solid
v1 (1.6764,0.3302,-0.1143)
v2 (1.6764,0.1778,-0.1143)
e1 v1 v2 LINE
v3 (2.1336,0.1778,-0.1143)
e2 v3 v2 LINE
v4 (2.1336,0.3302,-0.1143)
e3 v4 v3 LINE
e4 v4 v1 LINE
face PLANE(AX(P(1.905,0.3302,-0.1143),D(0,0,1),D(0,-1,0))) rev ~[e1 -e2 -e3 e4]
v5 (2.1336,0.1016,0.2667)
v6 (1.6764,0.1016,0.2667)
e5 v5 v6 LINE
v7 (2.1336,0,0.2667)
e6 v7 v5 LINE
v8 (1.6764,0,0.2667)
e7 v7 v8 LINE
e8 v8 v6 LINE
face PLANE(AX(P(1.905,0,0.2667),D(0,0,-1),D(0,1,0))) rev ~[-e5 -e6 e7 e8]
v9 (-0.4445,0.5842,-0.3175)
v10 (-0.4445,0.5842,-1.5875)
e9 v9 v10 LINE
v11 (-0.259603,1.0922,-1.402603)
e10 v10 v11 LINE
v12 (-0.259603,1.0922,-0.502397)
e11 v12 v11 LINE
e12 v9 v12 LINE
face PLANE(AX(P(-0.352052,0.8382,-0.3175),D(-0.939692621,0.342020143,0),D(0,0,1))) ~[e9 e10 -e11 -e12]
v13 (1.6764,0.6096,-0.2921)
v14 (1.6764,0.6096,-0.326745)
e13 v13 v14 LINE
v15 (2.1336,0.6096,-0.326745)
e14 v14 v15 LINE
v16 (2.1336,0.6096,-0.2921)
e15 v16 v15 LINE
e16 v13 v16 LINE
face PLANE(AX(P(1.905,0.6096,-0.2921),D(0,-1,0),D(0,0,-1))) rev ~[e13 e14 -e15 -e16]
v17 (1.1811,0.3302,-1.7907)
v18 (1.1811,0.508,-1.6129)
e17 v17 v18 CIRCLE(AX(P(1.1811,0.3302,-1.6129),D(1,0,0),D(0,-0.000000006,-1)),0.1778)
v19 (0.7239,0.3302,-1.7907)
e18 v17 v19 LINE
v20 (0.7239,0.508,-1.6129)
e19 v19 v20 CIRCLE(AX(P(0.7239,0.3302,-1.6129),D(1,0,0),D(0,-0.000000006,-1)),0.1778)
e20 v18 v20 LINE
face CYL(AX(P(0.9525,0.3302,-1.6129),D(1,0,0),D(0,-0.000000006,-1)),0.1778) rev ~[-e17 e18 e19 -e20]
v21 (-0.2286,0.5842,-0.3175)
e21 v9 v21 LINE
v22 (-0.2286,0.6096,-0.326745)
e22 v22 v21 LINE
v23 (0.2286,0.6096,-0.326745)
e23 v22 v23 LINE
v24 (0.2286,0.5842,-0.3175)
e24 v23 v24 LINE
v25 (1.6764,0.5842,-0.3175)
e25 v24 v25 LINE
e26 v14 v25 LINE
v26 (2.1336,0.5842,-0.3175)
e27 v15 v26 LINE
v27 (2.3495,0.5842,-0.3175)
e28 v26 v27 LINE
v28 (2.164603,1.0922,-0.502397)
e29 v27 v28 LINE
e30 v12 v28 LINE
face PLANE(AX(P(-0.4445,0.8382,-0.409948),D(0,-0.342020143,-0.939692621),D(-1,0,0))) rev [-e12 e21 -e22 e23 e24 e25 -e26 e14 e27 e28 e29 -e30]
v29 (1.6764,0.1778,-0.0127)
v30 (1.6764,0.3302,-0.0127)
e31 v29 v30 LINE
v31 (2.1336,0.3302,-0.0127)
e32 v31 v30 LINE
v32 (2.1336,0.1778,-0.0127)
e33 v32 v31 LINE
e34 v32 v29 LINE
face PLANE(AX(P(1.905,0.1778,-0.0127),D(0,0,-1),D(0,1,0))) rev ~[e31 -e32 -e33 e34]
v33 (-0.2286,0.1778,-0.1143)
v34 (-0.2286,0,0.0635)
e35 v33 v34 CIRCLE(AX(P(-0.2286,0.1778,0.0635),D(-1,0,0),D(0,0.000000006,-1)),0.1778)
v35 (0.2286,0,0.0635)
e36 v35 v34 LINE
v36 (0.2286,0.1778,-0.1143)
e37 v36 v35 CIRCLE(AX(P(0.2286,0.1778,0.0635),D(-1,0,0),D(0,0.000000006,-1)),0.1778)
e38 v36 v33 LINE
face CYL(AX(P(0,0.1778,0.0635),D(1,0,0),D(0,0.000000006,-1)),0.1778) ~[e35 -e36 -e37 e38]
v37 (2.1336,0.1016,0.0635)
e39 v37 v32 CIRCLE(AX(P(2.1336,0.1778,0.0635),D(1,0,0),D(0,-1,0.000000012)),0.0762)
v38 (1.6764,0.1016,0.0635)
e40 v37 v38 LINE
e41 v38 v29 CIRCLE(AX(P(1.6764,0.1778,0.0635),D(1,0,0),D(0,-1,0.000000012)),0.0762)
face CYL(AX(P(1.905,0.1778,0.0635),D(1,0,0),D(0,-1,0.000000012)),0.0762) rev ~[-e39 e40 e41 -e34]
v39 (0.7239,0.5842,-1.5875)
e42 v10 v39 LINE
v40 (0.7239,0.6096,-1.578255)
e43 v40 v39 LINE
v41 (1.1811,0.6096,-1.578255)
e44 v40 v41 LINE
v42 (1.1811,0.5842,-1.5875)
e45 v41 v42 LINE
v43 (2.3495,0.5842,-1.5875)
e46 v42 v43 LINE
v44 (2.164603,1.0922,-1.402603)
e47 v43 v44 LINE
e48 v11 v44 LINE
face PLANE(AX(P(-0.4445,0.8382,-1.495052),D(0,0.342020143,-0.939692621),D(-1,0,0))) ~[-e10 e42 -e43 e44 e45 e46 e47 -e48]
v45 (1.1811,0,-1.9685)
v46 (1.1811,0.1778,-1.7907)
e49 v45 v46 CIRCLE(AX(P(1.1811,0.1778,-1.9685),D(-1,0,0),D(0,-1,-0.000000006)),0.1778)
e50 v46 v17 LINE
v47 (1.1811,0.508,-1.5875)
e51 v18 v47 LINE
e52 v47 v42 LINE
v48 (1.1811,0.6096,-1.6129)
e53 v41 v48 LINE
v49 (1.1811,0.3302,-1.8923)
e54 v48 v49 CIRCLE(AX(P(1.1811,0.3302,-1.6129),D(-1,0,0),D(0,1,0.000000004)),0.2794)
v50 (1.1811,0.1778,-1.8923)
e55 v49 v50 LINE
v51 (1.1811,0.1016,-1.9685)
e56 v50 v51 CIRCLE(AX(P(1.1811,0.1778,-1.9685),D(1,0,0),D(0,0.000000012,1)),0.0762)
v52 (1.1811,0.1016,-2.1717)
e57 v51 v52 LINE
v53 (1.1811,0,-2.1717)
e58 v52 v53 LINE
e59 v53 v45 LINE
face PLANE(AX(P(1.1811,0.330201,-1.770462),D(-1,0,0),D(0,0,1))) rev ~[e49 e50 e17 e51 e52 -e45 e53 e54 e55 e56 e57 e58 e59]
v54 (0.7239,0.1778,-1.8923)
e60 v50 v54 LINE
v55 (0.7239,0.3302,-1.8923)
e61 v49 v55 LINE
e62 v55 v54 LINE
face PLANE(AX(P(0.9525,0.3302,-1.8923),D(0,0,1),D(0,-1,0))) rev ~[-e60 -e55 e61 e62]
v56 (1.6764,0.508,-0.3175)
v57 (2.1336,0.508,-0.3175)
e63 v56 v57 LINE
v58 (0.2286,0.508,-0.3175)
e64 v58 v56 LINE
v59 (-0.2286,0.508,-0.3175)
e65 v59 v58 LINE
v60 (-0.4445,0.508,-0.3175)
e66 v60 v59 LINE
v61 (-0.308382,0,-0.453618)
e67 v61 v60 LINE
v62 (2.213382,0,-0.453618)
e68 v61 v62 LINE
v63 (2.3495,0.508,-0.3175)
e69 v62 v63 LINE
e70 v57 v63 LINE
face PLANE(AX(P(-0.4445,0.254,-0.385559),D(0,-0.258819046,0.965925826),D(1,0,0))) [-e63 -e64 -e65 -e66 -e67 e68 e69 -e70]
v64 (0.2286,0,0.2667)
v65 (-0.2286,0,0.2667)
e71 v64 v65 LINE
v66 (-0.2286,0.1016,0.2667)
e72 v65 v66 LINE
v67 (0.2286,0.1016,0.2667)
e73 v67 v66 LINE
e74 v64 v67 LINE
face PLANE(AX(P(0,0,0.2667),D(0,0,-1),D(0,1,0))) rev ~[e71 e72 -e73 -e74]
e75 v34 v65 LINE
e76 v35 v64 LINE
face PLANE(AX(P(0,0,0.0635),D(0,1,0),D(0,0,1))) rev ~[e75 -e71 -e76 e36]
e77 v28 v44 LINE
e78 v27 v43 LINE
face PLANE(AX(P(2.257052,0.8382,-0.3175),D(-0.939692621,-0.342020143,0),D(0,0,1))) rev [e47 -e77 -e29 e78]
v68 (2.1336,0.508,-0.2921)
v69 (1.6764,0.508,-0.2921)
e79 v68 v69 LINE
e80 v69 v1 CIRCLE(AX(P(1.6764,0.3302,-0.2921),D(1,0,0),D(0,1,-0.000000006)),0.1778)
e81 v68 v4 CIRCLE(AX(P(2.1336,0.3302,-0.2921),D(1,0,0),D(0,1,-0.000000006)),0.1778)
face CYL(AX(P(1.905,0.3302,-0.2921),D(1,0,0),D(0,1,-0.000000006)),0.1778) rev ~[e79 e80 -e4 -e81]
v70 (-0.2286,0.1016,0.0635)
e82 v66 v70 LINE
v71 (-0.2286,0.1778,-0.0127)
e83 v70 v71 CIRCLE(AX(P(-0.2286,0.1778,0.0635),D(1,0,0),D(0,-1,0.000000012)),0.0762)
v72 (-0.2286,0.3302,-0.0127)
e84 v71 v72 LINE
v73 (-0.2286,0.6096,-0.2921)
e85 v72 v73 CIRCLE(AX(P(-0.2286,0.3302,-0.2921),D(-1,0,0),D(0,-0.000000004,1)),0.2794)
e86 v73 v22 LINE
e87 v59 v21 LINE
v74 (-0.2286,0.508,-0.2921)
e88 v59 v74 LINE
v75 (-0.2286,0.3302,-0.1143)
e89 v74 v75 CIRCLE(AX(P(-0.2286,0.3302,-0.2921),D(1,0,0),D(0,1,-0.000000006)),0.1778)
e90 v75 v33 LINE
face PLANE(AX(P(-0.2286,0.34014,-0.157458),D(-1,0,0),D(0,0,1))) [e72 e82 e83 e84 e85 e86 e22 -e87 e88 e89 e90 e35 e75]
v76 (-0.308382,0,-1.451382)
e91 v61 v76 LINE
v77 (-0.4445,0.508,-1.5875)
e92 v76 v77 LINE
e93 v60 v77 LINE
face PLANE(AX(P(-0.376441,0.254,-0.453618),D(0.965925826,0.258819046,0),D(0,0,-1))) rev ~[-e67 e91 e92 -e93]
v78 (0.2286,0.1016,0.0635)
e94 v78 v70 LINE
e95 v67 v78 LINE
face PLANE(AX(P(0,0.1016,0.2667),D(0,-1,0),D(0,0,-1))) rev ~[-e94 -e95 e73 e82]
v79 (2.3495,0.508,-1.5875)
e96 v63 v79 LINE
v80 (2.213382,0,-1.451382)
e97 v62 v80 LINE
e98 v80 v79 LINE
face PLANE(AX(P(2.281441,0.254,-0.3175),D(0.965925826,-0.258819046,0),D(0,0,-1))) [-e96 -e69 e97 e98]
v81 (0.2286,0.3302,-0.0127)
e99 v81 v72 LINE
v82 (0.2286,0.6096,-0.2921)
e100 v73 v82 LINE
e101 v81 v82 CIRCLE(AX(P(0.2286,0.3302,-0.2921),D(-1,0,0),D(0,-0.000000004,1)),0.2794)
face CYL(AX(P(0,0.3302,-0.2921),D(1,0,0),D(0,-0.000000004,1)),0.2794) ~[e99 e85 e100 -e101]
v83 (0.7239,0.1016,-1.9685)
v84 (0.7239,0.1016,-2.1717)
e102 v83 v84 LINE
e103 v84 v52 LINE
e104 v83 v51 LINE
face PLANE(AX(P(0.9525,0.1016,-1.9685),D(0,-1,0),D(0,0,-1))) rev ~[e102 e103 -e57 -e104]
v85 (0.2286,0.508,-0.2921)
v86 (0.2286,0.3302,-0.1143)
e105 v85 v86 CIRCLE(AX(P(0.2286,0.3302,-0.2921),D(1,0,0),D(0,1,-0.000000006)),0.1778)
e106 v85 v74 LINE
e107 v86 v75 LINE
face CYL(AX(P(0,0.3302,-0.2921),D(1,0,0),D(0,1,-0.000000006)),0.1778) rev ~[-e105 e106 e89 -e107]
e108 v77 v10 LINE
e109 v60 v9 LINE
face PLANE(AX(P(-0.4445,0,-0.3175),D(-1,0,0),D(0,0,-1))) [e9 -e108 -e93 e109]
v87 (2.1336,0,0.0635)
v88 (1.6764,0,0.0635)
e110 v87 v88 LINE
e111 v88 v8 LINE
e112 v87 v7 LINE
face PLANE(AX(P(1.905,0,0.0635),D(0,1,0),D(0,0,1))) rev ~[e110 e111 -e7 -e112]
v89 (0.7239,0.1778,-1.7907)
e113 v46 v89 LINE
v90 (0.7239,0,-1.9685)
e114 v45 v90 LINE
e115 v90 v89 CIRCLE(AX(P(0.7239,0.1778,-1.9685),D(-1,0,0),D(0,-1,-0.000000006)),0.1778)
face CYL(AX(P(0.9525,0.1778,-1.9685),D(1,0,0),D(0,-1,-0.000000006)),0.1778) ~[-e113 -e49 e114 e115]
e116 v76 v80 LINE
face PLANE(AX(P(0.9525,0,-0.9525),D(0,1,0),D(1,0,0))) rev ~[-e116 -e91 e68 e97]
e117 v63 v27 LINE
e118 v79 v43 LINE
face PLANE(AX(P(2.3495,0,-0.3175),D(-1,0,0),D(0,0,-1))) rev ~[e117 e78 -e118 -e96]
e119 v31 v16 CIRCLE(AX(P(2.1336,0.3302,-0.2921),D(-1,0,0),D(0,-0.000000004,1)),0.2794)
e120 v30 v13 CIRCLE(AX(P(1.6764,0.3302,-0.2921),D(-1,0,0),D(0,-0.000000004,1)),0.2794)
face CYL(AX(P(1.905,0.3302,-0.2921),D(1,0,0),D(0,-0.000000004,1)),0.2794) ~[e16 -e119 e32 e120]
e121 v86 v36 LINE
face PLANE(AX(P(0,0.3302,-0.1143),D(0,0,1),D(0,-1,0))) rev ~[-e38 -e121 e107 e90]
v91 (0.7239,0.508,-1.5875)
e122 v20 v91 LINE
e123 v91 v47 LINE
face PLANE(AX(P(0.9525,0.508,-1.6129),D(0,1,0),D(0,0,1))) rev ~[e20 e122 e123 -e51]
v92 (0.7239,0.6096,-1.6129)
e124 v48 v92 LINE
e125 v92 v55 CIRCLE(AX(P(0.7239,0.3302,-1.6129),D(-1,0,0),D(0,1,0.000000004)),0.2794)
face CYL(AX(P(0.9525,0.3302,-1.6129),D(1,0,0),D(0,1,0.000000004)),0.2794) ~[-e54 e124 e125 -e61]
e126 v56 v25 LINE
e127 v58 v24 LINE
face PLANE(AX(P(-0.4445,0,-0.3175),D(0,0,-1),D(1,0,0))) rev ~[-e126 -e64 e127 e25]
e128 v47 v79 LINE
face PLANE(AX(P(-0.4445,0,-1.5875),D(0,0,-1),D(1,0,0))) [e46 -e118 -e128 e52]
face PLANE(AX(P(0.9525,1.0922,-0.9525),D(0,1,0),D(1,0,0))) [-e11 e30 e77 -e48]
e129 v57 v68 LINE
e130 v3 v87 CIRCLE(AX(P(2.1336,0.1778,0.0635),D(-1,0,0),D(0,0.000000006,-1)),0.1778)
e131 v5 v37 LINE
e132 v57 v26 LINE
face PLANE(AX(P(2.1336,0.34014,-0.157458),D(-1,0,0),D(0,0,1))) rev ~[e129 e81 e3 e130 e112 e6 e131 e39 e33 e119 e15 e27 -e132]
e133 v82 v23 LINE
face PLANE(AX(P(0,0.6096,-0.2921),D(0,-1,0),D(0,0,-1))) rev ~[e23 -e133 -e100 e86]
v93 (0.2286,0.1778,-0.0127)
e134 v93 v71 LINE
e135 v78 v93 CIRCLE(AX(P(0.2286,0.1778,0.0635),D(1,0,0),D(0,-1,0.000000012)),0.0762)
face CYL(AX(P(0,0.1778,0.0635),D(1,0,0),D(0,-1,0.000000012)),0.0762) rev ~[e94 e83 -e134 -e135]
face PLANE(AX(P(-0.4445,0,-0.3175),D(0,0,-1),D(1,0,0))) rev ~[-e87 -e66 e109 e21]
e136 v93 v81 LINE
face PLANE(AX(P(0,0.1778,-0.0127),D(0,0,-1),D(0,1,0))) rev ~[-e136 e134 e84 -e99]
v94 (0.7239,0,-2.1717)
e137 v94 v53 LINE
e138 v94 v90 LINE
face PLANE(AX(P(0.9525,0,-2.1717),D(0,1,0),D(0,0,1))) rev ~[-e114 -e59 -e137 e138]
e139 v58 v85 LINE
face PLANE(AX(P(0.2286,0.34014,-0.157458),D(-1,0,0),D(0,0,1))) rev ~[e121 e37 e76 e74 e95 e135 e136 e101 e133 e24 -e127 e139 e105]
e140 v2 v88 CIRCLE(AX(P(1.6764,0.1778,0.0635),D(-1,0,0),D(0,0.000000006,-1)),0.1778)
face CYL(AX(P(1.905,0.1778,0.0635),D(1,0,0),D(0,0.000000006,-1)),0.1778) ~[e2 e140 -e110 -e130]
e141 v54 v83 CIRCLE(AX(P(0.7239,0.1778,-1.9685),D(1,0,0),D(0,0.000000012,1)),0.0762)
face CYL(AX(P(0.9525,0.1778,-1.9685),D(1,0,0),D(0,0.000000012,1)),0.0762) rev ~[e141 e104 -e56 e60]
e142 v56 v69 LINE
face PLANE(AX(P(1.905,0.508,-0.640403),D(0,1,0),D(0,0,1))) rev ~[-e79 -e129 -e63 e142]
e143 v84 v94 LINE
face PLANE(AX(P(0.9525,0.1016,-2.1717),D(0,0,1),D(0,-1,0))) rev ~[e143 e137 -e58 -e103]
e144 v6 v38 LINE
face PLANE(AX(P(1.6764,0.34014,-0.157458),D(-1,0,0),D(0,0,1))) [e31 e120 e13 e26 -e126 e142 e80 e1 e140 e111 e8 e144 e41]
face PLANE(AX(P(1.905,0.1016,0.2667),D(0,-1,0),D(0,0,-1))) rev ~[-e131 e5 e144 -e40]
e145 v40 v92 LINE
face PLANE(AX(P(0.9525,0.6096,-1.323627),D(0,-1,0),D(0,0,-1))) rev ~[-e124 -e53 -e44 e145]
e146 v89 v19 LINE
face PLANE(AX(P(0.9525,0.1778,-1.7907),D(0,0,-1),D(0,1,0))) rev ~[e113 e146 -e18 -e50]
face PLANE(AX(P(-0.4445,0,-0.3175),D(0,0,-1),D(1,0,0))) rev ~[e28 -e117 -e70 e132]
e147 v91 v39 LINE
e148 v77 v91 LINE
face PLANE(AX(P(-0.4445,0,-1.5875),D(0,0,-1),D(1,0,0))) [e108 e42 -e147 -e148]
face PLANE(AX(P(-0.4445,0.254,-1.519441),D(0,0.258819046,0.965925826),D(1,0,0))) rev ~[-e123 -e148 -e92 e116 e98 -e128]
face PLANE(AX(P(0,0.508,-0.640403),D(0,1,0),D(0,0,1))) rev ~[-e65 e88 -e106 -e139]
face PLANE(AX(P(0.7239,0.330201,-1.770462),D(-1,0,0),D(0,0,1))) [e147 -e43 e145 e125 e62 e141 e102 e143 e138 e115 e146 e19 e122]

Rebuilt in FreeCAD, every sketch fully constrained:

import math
import FreeCAD as App
import Part
import Sketcher

V = App.Vector
Q = App.Units.Quantity


def edges_at(feature, points):
    """Names of the edges that pass closest to the given points."""
    edges = feature.Shape.Edges
    near = lambda p: min(range(len(edges)), key=lambda i: edges[i].distToShape(Part.Vertex(*p))[0])
    return sorted({f"Edge{near(p) + 1}" for p in points})

doc = App.newDocument("Part")
body = doc.addObject("PartDesign::Body", "Body")

# Sketch on XZ plane
sketch1 = doc.addObject("Sketcher::SketchObject", "Sketch")
body.addObject(sketch1)
sketch1.AttachmentSupport = (doc.XZ_Plane, [""])
sketch1.MapMode = "FlatFace"
sketch1.addGeometry([
    Part.LineSegment(V(-0.4, -1.6, 0), V(-0.4, -0.3, 0)),
    Part.LineSegment(V(-0.4, -0.3, 0), V(2.3, -0.3, 0)),
    Part.LineSegment(V(2.3, -0.3, 0), V(2.3, -1.6, 0)),
    Part.LineSegment(V(2.3, -1.6, 0), V(-0.4, -1.6, 0)),
], False)
sketch1.addConstraint([
    Sketcher.Constraint("Coincident", 0, 2, 1, 1),
    Sketcher.Constraint("Coincident", 1, 2, 2, 1),
    Sketcher.Constraint("Coincident", 2, 2, 3, 1),
    Sketcher.Constraint("Coincident", 3, 2, 0, 1),
    Sketcher.Constraint("Vertical", 0),
    Sketcher.Constraint("Horizontal", 1),
    Sketcher.Constraint("Vertical", 2),
    Sketcher.Constraint("Horizontal", 3),
    Sketcher.Constraint("DistanceX", 1, 1, 1, 2, Q("0.11 in")),
    Sketcher.Constraint("DistanceY", 0, 1, 0, 2, Q("0.05 in")),
    Sketcher.Constraint("DistanceY", 2, 2, -1, 1, Q("0.0625 in")),
    Sketcher.Constraint("DistanceX", 0, 2, -1, 1, Q("0.0175 in")),
])
pad1 = doc.addObject("PartDesign::Pad", "Pad")
body.addObject(pad1)
pad1.Profile = sketch1
pad1.Length = Q("0.043 in")
pad1.Reversed = True
doc.recompute()

chamfer = doc.addObject("PartDesign::Chamfer", "Chamfer")
body.addObject(chamfer)
chamfer.Base = (pad1, edges_at(pad1, [
    (2.349, 1.092, -0.953),
    (0.953, 1.092, -1.587),
    (-0.445, 1.092, -0.953),
    (0.953, 1.092, -0.318),
]))
chamfer.ChamferType = "Two distances"
chamfer.Size = Q("0.02 in")
chamfer.Size2 = 0.184897
doc.recompute()

chamfer2 = doc.addObject("PartDesign::Chamfer", "Chamfer001")
body.addObject(chamfer2)
chamfer2.Base = (chamfer, edges_at(chamfer, [(0.953, 0, -1.587)]))
chamfer2.ChamferType = "Two distances"
chamfer2.Size = 0.136118
chamfer2.Size2 = Q("0.02 in")
chamfer2.FlipDirection = True
doc.recompute()

chamfer3 = doc.addObject("PartDesign::Chamfer", "Chamfer002")
body.addObject(chamfer3)
chamfer3.Base = (chamfer2, edges_at(chamfer2, [(2.349, 0, -0.884)]))
chamfer3.ChamferType = "Two distances"
chamfer3.Size = 0.136118
chamfer3.Size2 = Q("0.02 in")
doc.recompute()

chamfer4 = doc.addObject("PartDesign::Chamfer", "Chamfer003")
body.addObject(chamfer4)
chamfer4.Base = (chamfer3, edges_at(chamfer3, [(0.884, 0, -0.318)]))
chamfer4.ChamferType = "Two distances"
chamfer4.Size = 0.136118
chamfer4.Size2 = Q("0.02 in")
doc.recompute()

chamfer5 = doc.addObject("PartDesign::Chamfer", "Chamfer004")
body.addObject(chamfer5)
chamfer5.Base = (chamfer4, edges_at(chamfer4, [(-0.445, 0, -0.953)]))
chamfer5.ChamferType = "Two distances"
chamfer5.Size = 0.136118
chamfer5.Size2 = Q("0.02 in")

# Sketch on YZ plane
sketch2 = doc.addObject("Sketcher::SketchObject", "Sketch001")
body.addObject(sketch2)
sketch2.AttachmentSupport = (doc.YZ_Plane, [""])
sketch2.MapMode = "FlatFace"
sketch2.addGeometry([
    Part.LineSegment(V(0.51, -0.29, 0), V(0.51, -0.64, 0)),  # 0
    Part.LineSegment(V(0.51, -0.64, 0), V(0.61, -0.64, 0)),  # 1
    Part.LineSegment(V(0.61, -0.64, 0), V(0.61, -0.29, 0)),  # 2
    Part.ArcOfCircle(Part.Circle(V(0.33, -0.29, 0), V(0, 0, 1), 0.28), math.radians(0), math.radians(90)),  # 3
    Part.LineSegment(V(0.33, -0.01, 0), V(0.18, -0.01, 0)),  # 4
    Part.ArcOfCircle(Part.Circle(V(0.18, 0.06, 0), V(0, 0, 1), 0.08), math.radians(180), math.radians(270)),  # 5
    Part.LineSegment(V(0.1, 0.06, 0), V(0.1, 0.27, 0)),  # 6
    Part.LineSegment(V(0.1, 0.27, 0), V(0, 0.27, 0)),  # 7
    Part.LineSegment(V(0, 0.27, 0), V(0, 0.06, 0)),  # 8
    Part.ArcOfCircle(Part.Circle(V(0.18, 0.06, 0), V(0, 0, 1), 0.18), math.radians(180), math.radians(270)),  # 9
    Part.LineSegment(V(0.18, -0.11, 0), V(0.33, -0.11, 0)),  # 10
    Part.ArcOfCircle(Part.Circle(V(0.33, -0.29, 0), V(0, 0, 1), 0.18), math.radians(0), math.radians(90)),  # 11
], False)
sketch2.addConstraint([
    Sketcher.Constraint("Coincident", 0, 2, 1, 1),
    Sketcher.Constraint("Coincident", 1, 2, 2, 1),
    Sketcher.Constraint("Tangent", 2, 2, 3, 1),
    Sketcher.Constraint("Tangent", 3, 2, 4, 1),
    Sketcher.Constraint("Tangent", 4, 2, 5, 2),
    Sketcher.Constraint("Tangent", 5, 1, 6, 1),
    Sketcher.Constraint("Coincident", 6, 2, 7, 1),
    Sketcher.Constraint("Coincident", 7, 2, 8, 1),
    Sketcher.Constraint("Tangent", 8, 2, 9, 1),
    Sketcher.Constraint("Tangent", 9, 2, 10, 1),
    Sketcher.Constraint("Tangent", 10, 2, 11, 2),
    Sketcher.Constraint("Tangent", 11, 1, 0, 1),
    Sketcher.Constraint("Vertical", 0),
    Sketcher.Constraint("Horizontal", 1),
    Sketcher.Constraint("Vertical", 2),
    Sketcher.Constraint("Horizontal", 4),
    Sketcher.Constraint("Vertical", 6),
    Sketcher.Constraint("Horizontal", 7),
    Sketcher.Constraint("Vertical", 8),
    Sketcher.Constraint("Horizontal", 10),
    Sketcher.Constraint("Coincident", 9, 3, 5, 3),
    Sketcher.Constraint("Coincident", 11, 3, 3, 3),
    Sketcher.Constraint("Equal", 9, 11),
    Sketcher.Constraint("PointOnObject", 7, 2, -2),
    Sketcher.Constraint("Radius", 3, Q("0.011 in")),
    Sketcher.Constraint("Radius", 5, Q("0.003 in")),
    Sketcher.Constraint("DistanceX", 4, 2, 4, 1, Q("0.006 in")),
    Sketcher.Constraint("DistanceY", 6, 1, 6, 2, Q("0.008 in")),
    Sketcher.Constraint("DistanceY", 3, 3, -1, 1, Q("0.0115 in")),
    Sketcher.Constraint("DistanceY", 0, 2, 0, 1, Q("0.348303 mm")),
])
pad2 = doc.addObject("PartDesign::Pad", "Pad001")
body.addObject(pad2)
pad2.Profile = sketch2
pad2.Length = Q("0.018 in")
pad2.Midplane = True
doc.recompute()

linearpattern = doc.addObject("PartDesign::LinearPattern", "LinearPattern")
body.addObject(linearpattern)
linearpattern.Originals = [pad2]
linearpattern.Direction = (doc.X_Axis, [""])
linearpattern.Mode = "offset"
linearpattern.Offset = Q("0.075 in")
linearpattern.Occurrences = 2
body.Tip = linearpattern

# Sketch on YZ plane
sketch3 = doc.addObject("Sketcher::SketchObject", "Sketch002")
body.addObject(sketch3)
sketch3.AttachmentSupport = (doc.YZ_Plane, [""])
sketch3.MapMode = "FlatFace"
sketch3.AttachmentOffset = App.Placement(V(0, 0, 0.0375 * 25.4), App.Rotation())
sketch3.addGeometry([
    Part.LineSegment(V(0, -1.97, 0), V(0, -2.17, 0)),  # 0
    Part.LineSegment(V(0, -2.17, 0), V(0.1, -2.17, 0)),  # 1
    Part.LineSegment(V(0.1, -2.17, 0), V(0.1, -1.97, 0)),  # 2
    Part.ArcOfCircle(Part.Circle(V(0.18, -1.97, 0), V(0, 0, 1), 0.08), math.radians(90), math.radians(180)),  # 3
    Part.LineSegment(V(0.18, -1.89, 0), V(0.33, -1.89, 0)),  # 4
    Part.ArcOfCircle(Part.Circle(V(0.33, -1.61, 0), V(0, 0, 1), 0.28), math.radians(-90), math.radians(0)),  # 5
    Part.LineSegment(V(0.61, -1.61, 0), V(0.61, -1.32, 0)),  # 6
    Part.LineSegment(V(0.61, -1.32, 0), V(0.51, -1.32, 0)),  # 7
    Part.LineSegment(V(0.51, -1.32, 0), V(0.51, -1.61, 0)),  # 8
    Part.ArcOfCircle(Part.Circle(V(0.33, -1.61, 0), V(0, 0, 1), 0.18), math.radians(-90), math.radians(0)),  # 9
    Part.LineSegment(V(0.33, -1.79, 0), V(0.18, -1.79, 0)),  # 10
    Part.ArcOfCircle(Part.Circle(V(0.18, -1.97, 0), V(0, 0, 1), 0.18), math.radians(90), math.radians(180)),  # 11
], False)
sketch3.addConstraint([
    Sketcher.Constraint("Coincident", 0, 2, 1, 1),
    Sketcher.Constraint("Coincident", 1, 2, 2, 1),
    Sketcher.Constraint("Tangent", 2, 2, 3, 2),
    Sketcher.Constraint("Tangent", 3, 1, 4, 1),
    Sketcher.Constraint("Tangent", 4, 2, 5, 1),
    Sketcher.Constraint("Tangent", 5, 2, 6, 1),
    Sketcher.Constraint("Coincident", 6, 2, 7, 1),
    Sketcher.Constraint("Coincident", 7, 2, 8, 1),
    Sketcher.Constraint("Tangent", 8, 2, 9, 2),
    Sketcher.Constraint("Tangent", 9, 1, 10, 1),
    Sketcher.Constraint("Tangent", 10, 2, 11, 1),
    Sketcher.Constraint("Tangent", 11, 2, 0, 1),
    Sketcher.Constraint("Vertical", 0),
    Sketcher.Constraint("Horizontal", 1),
    Sketcher.Constraint("Vertical", 2),
    Sketcher.Constraint("Horizontal", 4),
    Sketcher.Constraint("Vertical", 6),
    Sketcher.Constraint("Horizontal", 7),
    Sketcher.Constraint("Vertical", 8),
    Sketcher.Constraint("Horizontal", 10),
    Sketcher.Constraint("Coincident", 9, 3, 5, 3),
    Sketcher.Constraint("Coincident", 11, 3, 3, 3),
    Sketcher.Constraint("Equal", 9, 11),
    Sketcher.Constraint("PointOnObject", 0, 2, -2),
    Sketcher.Constraint("Radius", 3, Q("0.003 in")),
    Sketcher.Constraint("Radius", 5, Q("0.011 in")),
    Sketcher.Constraint("DistanceX", 4, 1, 4, 2, Q("0.006 in")),
    Sketcher.Constraint("DistanceY", 0, 2, 0, 1, Q("0.008 in")),
    Sketcher.Constraint("DistanceY", 3, 3, -1, 1, Q("0.0775 in")),
    Sketcher.Constraint("DistanceY", 6, 1, 6, 2, Q("0.289273 mm")),
])
pad3 = doc.addObject("PartDesign::Pad", "Pad002")
body.addObject(pad3)
pad3.Profile = sketch3
pad3.Length = Q("0.018 in")
pad3.Midplane = True

doc.recompute()
